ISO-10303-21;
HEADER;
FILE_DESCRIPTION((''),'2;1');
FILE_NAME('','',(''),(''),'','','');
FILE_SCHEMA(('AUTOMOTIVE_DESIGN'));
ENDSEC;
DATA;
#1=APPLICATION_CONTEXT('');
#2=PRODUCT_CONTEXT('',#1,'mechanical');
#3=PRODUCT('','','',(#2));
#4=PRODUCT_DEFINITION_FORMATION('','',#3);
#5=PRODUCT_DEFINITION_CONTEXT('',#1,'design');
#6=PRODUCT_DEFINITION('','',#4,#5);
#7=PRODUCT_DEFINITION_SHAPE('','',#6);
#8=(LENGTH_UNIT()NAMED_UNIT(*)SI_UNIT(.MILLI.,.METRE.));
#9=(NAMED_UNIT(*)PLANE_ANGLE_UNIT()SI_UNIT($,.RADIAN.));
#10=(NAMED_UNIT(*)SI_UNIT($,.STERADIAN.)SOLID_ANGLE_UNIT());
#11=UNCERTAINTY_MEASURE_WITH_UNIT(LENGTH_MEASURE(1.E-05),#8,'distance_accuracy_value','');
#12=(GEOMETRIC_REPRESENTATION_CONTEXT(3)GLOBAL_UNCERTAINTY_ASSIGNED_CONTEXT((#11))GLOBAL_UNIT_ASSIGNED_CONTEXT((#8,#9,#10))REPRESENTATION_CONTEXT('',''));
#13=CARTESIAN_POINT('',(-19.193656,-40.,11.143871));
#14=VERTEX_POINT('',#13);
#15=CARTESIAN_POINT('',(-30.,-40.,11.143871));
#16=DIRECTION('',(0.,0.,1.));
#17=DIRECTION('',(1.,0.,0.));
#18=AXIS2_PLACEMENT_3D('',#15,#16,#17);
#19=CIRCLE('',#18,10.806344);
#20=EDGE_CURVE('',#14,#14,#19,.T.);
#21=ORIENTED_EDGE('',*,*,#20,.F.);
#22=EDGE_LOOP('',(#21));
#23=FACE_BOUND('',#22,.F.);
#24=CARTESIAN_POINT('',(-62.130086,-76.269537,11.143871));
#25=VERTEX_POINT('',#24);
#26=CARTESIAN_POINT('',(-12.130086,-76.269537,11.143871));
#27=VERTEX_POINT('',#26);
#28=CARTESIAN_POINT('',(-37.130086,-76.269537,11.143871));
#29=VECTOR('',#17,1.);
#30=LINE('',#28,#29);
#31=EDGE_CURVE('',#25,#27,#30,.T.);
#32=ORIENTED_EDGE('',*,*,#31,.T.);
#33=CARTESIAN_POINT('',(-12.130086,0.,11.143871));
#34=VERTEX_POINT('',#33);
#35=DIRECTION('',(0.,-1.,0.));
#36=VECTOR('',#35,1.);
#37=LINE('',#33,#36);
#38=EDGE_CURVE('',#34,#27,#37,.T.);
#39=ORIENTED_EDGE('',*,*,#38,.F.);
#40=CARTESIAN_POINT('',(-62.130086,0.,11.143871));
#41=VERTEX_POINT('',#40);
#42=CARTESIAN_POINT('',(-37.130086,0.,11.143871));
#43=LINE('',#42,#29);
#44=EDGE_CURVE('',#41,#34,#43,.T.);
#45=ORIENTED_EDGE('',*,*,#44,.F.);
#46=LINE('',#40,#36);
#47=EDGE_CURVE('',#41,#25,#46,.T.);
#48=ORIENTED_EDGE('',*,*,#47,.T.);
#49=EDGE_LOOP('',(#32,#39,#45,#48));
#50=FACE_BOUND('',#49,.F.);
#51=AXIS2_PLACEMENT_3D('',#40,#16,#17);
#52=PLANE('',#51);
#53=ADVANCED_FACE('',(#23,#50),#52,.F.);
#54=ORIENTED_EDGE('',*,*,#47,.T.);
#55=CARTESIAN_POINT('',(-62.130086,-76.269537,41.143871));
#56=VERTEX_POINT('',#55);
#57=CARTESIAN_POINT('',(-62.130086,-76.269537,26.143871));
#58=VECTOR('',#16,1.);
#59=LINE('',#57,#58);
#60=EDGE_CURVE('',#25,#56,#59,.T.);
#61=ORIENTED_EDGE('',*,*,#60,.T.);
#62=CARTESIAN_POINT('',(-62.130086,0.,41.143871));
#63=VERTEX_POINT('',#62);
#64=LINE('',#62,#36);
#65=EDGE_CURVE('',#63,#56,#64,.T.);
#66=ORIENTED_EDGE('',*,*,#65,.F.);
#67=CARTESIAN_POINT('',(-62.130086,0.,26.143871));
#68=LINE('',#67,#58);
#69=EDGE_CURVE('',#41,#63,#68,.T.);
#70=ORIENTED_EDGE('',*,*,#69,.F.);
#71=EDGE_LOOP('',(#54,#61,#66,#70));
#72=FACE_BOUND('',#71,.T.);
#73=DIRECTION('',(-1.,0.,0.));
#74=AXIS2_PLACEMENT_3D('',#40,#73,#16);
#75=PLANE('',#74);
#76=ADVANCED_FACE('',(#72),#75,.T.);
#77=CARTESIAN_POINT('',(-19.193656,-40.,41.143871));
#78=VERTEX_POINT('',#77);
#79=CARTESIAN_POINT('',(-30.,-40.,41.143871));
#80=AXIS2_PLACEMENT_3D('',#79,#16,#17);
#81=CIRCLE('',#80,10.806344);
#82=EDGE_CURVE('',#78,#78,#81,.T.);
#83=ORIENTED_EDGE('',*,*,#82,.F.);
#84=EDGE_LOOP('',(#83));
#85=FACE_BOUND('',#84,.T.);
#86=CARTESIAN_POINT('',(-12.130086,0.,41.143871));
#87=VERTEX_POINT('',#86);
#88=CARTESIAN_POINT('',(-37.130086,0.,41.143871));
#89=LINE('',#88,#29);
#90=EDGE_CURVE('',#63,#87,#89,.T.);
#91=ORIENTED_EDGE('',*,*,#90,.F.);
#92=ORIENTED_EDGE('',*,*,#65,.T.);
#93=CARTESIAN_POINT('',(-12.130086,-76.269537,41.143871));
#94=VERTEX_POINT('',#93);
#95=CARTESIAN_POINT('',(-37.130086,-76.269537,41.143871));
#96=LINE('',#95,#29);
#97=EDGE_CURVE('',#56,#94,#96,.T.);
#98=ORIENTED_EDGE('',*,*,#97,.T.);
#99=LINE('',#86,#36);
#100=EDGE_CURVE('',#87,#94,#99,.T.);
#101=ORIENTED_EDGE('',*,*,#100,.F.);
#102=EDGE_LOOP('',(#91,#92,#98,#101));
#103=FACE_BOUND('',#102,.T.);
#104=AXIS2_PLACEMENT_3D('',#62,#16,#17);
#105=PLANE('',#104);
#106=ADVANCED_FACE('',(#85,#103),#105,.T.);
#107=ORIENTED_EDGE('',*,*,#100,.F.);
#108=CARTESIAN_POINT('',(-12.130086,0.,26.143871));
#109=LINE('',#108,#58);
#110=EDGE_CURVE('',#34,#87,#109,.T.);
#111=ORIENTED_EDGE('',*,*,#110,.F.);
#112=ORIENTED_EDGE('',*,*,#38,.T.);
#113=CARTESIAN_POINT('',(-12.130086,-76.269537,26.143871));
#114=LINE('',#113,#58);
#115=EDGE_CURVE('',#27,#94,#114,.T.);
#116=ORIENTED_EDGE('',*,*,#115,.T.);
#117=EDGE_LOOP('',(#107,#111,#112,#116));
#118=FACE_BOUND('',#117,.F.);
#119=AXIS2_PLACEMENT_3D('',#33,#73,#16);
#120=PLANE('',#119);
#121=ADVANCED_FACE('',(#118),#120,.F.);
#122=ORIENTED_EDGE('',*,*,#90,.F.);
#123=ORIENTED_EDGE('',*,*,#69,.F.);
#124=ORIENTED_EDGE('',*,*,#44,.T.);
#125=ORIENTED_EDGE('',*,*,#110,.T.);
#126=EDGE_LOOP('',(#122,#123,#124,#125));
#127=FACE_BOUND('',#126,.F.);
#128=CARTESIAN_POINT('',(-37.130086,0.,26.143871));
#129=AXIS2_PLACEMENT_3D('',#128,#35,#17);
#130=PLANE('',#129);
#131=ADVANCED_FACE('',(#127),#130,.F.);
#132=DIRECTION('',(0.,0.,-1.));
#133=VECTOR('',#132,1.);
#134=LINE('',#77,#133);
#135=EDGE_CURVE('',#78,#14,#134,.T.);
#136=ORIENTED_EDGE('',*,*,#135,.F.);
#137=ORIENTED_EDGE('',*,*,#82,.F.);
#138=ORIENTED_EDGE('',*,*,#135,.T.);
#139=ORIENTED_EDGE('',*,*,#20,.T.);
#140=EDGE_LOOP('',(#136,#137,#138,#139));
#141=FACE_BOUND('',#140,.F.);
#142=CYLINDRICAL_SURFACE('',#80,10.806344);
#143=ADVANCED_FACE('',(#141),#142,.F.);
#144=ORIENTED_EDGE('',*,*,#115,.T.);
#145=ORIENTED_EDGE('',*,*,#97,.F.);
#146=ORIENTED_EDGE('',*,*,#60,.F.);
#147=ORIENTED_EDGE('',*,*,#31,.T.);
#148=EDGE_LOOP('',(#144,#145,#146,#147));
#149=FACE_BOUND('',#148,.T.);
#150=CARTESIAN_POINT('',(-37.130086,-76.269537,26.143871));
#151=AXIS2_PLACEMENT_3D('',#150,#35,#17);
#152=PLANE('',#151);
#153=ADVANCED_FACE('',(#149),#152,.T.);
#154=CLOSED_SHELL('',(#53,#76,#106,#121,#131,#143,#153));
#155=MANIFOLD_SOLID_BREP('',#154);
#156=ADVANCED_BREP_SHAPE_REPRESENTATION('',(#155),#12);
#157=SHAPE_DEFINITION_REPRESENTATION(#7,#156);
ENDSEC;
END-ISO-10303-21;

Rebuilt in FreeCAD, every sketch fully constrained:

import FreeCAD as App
import Part
import Sketcher
from FreeCAD import Vector


def add_polygon(sketch, points):
    """Adds a closed chain of lines whose ends are joined by coincident constraints."""
    first, n = sketch.GeometryCount, len(points)
    for a, b in zip(points, points[1:] + points[:1]):
        sketch.addGeometry(Part.LineSegment(App.Vector(*a, 0), App.Vector(*b, 0)), False)
    for i in range(n):
        sketch.addConstraint(Sketcher.Constraint("Coincident", first + i, 2, first + (i + 1) % n, 1))

doc = App.newDocument("Part")
body = doc.addObject("PartDesign::Body", "Body")

sketch1 = body.newObject("Sketcher::SketchObject", "Sketch")
sketch1.AttachmentSupport = (doc.getObject("XZ_Plane"), [""])
sketch1.MapMode = "FlatFace"
add_polygon(sketch1, [(-62, 41), (-62, 11), (-12, 11), (-12, 41)])
sketch1.addConstraint([
    Sketcher.Constraint("Vertical", 0),
    Sketcher.Constraint("Horizontal", 1),
    Sketcher.Constraint("Vertical", 2),
    Sketcher.Constraint("Horizontal", 3),
    Sketcher.Constraint("DistanceX", 1, 1, 1, 2, 50.0),
    Sketcher.Constraint("DistanceY", 0, 2, 0, 1, 30.0),
    Sketcher.Constraint("DistanceY", -1, 1, 0, 2, 11.143871),
    Sketcher.Constraint("DistanceX", 0, 2, -1, 1, 62.130086),
])
pad1 = body.newObject("PartDesign::Pad", "Pad")
pad1.Profile = sketch1
pad1.Length = 76.269537

sketch2 = body.newObject("Sketcher::SketchObject", "Sketch001")
sketch2.AttachmentSupport = (doc.getObject("XY_Plane"), [""])
sketch2.MapMode = "FlatFace"
sketch2.AttachmentOffset = App.Placement(Vector(0, 0, 41.143871), App.Rotation())
sketch2.addGeometry(Part.Circle(Vector(-30, -40, 0), Vector(0, 0, 1), 11), False)
sketch2.addConstraint([
    Sketcher.Constraint("DistanceX", 0, 3, -1, 1, 30.0),
    Sketcher.Constraint("DistanceY", 0, 3, -1, 1, 40.0),
    Sketcher.Constraint("Diameter", 0, 21.612688),
])
pocket1 = body.newObject("PartDesign::Pocket", "Pocket")
pocket1.Profile = sketch2
pocket1.Type = "ThroughAll"

doc.recompute()
